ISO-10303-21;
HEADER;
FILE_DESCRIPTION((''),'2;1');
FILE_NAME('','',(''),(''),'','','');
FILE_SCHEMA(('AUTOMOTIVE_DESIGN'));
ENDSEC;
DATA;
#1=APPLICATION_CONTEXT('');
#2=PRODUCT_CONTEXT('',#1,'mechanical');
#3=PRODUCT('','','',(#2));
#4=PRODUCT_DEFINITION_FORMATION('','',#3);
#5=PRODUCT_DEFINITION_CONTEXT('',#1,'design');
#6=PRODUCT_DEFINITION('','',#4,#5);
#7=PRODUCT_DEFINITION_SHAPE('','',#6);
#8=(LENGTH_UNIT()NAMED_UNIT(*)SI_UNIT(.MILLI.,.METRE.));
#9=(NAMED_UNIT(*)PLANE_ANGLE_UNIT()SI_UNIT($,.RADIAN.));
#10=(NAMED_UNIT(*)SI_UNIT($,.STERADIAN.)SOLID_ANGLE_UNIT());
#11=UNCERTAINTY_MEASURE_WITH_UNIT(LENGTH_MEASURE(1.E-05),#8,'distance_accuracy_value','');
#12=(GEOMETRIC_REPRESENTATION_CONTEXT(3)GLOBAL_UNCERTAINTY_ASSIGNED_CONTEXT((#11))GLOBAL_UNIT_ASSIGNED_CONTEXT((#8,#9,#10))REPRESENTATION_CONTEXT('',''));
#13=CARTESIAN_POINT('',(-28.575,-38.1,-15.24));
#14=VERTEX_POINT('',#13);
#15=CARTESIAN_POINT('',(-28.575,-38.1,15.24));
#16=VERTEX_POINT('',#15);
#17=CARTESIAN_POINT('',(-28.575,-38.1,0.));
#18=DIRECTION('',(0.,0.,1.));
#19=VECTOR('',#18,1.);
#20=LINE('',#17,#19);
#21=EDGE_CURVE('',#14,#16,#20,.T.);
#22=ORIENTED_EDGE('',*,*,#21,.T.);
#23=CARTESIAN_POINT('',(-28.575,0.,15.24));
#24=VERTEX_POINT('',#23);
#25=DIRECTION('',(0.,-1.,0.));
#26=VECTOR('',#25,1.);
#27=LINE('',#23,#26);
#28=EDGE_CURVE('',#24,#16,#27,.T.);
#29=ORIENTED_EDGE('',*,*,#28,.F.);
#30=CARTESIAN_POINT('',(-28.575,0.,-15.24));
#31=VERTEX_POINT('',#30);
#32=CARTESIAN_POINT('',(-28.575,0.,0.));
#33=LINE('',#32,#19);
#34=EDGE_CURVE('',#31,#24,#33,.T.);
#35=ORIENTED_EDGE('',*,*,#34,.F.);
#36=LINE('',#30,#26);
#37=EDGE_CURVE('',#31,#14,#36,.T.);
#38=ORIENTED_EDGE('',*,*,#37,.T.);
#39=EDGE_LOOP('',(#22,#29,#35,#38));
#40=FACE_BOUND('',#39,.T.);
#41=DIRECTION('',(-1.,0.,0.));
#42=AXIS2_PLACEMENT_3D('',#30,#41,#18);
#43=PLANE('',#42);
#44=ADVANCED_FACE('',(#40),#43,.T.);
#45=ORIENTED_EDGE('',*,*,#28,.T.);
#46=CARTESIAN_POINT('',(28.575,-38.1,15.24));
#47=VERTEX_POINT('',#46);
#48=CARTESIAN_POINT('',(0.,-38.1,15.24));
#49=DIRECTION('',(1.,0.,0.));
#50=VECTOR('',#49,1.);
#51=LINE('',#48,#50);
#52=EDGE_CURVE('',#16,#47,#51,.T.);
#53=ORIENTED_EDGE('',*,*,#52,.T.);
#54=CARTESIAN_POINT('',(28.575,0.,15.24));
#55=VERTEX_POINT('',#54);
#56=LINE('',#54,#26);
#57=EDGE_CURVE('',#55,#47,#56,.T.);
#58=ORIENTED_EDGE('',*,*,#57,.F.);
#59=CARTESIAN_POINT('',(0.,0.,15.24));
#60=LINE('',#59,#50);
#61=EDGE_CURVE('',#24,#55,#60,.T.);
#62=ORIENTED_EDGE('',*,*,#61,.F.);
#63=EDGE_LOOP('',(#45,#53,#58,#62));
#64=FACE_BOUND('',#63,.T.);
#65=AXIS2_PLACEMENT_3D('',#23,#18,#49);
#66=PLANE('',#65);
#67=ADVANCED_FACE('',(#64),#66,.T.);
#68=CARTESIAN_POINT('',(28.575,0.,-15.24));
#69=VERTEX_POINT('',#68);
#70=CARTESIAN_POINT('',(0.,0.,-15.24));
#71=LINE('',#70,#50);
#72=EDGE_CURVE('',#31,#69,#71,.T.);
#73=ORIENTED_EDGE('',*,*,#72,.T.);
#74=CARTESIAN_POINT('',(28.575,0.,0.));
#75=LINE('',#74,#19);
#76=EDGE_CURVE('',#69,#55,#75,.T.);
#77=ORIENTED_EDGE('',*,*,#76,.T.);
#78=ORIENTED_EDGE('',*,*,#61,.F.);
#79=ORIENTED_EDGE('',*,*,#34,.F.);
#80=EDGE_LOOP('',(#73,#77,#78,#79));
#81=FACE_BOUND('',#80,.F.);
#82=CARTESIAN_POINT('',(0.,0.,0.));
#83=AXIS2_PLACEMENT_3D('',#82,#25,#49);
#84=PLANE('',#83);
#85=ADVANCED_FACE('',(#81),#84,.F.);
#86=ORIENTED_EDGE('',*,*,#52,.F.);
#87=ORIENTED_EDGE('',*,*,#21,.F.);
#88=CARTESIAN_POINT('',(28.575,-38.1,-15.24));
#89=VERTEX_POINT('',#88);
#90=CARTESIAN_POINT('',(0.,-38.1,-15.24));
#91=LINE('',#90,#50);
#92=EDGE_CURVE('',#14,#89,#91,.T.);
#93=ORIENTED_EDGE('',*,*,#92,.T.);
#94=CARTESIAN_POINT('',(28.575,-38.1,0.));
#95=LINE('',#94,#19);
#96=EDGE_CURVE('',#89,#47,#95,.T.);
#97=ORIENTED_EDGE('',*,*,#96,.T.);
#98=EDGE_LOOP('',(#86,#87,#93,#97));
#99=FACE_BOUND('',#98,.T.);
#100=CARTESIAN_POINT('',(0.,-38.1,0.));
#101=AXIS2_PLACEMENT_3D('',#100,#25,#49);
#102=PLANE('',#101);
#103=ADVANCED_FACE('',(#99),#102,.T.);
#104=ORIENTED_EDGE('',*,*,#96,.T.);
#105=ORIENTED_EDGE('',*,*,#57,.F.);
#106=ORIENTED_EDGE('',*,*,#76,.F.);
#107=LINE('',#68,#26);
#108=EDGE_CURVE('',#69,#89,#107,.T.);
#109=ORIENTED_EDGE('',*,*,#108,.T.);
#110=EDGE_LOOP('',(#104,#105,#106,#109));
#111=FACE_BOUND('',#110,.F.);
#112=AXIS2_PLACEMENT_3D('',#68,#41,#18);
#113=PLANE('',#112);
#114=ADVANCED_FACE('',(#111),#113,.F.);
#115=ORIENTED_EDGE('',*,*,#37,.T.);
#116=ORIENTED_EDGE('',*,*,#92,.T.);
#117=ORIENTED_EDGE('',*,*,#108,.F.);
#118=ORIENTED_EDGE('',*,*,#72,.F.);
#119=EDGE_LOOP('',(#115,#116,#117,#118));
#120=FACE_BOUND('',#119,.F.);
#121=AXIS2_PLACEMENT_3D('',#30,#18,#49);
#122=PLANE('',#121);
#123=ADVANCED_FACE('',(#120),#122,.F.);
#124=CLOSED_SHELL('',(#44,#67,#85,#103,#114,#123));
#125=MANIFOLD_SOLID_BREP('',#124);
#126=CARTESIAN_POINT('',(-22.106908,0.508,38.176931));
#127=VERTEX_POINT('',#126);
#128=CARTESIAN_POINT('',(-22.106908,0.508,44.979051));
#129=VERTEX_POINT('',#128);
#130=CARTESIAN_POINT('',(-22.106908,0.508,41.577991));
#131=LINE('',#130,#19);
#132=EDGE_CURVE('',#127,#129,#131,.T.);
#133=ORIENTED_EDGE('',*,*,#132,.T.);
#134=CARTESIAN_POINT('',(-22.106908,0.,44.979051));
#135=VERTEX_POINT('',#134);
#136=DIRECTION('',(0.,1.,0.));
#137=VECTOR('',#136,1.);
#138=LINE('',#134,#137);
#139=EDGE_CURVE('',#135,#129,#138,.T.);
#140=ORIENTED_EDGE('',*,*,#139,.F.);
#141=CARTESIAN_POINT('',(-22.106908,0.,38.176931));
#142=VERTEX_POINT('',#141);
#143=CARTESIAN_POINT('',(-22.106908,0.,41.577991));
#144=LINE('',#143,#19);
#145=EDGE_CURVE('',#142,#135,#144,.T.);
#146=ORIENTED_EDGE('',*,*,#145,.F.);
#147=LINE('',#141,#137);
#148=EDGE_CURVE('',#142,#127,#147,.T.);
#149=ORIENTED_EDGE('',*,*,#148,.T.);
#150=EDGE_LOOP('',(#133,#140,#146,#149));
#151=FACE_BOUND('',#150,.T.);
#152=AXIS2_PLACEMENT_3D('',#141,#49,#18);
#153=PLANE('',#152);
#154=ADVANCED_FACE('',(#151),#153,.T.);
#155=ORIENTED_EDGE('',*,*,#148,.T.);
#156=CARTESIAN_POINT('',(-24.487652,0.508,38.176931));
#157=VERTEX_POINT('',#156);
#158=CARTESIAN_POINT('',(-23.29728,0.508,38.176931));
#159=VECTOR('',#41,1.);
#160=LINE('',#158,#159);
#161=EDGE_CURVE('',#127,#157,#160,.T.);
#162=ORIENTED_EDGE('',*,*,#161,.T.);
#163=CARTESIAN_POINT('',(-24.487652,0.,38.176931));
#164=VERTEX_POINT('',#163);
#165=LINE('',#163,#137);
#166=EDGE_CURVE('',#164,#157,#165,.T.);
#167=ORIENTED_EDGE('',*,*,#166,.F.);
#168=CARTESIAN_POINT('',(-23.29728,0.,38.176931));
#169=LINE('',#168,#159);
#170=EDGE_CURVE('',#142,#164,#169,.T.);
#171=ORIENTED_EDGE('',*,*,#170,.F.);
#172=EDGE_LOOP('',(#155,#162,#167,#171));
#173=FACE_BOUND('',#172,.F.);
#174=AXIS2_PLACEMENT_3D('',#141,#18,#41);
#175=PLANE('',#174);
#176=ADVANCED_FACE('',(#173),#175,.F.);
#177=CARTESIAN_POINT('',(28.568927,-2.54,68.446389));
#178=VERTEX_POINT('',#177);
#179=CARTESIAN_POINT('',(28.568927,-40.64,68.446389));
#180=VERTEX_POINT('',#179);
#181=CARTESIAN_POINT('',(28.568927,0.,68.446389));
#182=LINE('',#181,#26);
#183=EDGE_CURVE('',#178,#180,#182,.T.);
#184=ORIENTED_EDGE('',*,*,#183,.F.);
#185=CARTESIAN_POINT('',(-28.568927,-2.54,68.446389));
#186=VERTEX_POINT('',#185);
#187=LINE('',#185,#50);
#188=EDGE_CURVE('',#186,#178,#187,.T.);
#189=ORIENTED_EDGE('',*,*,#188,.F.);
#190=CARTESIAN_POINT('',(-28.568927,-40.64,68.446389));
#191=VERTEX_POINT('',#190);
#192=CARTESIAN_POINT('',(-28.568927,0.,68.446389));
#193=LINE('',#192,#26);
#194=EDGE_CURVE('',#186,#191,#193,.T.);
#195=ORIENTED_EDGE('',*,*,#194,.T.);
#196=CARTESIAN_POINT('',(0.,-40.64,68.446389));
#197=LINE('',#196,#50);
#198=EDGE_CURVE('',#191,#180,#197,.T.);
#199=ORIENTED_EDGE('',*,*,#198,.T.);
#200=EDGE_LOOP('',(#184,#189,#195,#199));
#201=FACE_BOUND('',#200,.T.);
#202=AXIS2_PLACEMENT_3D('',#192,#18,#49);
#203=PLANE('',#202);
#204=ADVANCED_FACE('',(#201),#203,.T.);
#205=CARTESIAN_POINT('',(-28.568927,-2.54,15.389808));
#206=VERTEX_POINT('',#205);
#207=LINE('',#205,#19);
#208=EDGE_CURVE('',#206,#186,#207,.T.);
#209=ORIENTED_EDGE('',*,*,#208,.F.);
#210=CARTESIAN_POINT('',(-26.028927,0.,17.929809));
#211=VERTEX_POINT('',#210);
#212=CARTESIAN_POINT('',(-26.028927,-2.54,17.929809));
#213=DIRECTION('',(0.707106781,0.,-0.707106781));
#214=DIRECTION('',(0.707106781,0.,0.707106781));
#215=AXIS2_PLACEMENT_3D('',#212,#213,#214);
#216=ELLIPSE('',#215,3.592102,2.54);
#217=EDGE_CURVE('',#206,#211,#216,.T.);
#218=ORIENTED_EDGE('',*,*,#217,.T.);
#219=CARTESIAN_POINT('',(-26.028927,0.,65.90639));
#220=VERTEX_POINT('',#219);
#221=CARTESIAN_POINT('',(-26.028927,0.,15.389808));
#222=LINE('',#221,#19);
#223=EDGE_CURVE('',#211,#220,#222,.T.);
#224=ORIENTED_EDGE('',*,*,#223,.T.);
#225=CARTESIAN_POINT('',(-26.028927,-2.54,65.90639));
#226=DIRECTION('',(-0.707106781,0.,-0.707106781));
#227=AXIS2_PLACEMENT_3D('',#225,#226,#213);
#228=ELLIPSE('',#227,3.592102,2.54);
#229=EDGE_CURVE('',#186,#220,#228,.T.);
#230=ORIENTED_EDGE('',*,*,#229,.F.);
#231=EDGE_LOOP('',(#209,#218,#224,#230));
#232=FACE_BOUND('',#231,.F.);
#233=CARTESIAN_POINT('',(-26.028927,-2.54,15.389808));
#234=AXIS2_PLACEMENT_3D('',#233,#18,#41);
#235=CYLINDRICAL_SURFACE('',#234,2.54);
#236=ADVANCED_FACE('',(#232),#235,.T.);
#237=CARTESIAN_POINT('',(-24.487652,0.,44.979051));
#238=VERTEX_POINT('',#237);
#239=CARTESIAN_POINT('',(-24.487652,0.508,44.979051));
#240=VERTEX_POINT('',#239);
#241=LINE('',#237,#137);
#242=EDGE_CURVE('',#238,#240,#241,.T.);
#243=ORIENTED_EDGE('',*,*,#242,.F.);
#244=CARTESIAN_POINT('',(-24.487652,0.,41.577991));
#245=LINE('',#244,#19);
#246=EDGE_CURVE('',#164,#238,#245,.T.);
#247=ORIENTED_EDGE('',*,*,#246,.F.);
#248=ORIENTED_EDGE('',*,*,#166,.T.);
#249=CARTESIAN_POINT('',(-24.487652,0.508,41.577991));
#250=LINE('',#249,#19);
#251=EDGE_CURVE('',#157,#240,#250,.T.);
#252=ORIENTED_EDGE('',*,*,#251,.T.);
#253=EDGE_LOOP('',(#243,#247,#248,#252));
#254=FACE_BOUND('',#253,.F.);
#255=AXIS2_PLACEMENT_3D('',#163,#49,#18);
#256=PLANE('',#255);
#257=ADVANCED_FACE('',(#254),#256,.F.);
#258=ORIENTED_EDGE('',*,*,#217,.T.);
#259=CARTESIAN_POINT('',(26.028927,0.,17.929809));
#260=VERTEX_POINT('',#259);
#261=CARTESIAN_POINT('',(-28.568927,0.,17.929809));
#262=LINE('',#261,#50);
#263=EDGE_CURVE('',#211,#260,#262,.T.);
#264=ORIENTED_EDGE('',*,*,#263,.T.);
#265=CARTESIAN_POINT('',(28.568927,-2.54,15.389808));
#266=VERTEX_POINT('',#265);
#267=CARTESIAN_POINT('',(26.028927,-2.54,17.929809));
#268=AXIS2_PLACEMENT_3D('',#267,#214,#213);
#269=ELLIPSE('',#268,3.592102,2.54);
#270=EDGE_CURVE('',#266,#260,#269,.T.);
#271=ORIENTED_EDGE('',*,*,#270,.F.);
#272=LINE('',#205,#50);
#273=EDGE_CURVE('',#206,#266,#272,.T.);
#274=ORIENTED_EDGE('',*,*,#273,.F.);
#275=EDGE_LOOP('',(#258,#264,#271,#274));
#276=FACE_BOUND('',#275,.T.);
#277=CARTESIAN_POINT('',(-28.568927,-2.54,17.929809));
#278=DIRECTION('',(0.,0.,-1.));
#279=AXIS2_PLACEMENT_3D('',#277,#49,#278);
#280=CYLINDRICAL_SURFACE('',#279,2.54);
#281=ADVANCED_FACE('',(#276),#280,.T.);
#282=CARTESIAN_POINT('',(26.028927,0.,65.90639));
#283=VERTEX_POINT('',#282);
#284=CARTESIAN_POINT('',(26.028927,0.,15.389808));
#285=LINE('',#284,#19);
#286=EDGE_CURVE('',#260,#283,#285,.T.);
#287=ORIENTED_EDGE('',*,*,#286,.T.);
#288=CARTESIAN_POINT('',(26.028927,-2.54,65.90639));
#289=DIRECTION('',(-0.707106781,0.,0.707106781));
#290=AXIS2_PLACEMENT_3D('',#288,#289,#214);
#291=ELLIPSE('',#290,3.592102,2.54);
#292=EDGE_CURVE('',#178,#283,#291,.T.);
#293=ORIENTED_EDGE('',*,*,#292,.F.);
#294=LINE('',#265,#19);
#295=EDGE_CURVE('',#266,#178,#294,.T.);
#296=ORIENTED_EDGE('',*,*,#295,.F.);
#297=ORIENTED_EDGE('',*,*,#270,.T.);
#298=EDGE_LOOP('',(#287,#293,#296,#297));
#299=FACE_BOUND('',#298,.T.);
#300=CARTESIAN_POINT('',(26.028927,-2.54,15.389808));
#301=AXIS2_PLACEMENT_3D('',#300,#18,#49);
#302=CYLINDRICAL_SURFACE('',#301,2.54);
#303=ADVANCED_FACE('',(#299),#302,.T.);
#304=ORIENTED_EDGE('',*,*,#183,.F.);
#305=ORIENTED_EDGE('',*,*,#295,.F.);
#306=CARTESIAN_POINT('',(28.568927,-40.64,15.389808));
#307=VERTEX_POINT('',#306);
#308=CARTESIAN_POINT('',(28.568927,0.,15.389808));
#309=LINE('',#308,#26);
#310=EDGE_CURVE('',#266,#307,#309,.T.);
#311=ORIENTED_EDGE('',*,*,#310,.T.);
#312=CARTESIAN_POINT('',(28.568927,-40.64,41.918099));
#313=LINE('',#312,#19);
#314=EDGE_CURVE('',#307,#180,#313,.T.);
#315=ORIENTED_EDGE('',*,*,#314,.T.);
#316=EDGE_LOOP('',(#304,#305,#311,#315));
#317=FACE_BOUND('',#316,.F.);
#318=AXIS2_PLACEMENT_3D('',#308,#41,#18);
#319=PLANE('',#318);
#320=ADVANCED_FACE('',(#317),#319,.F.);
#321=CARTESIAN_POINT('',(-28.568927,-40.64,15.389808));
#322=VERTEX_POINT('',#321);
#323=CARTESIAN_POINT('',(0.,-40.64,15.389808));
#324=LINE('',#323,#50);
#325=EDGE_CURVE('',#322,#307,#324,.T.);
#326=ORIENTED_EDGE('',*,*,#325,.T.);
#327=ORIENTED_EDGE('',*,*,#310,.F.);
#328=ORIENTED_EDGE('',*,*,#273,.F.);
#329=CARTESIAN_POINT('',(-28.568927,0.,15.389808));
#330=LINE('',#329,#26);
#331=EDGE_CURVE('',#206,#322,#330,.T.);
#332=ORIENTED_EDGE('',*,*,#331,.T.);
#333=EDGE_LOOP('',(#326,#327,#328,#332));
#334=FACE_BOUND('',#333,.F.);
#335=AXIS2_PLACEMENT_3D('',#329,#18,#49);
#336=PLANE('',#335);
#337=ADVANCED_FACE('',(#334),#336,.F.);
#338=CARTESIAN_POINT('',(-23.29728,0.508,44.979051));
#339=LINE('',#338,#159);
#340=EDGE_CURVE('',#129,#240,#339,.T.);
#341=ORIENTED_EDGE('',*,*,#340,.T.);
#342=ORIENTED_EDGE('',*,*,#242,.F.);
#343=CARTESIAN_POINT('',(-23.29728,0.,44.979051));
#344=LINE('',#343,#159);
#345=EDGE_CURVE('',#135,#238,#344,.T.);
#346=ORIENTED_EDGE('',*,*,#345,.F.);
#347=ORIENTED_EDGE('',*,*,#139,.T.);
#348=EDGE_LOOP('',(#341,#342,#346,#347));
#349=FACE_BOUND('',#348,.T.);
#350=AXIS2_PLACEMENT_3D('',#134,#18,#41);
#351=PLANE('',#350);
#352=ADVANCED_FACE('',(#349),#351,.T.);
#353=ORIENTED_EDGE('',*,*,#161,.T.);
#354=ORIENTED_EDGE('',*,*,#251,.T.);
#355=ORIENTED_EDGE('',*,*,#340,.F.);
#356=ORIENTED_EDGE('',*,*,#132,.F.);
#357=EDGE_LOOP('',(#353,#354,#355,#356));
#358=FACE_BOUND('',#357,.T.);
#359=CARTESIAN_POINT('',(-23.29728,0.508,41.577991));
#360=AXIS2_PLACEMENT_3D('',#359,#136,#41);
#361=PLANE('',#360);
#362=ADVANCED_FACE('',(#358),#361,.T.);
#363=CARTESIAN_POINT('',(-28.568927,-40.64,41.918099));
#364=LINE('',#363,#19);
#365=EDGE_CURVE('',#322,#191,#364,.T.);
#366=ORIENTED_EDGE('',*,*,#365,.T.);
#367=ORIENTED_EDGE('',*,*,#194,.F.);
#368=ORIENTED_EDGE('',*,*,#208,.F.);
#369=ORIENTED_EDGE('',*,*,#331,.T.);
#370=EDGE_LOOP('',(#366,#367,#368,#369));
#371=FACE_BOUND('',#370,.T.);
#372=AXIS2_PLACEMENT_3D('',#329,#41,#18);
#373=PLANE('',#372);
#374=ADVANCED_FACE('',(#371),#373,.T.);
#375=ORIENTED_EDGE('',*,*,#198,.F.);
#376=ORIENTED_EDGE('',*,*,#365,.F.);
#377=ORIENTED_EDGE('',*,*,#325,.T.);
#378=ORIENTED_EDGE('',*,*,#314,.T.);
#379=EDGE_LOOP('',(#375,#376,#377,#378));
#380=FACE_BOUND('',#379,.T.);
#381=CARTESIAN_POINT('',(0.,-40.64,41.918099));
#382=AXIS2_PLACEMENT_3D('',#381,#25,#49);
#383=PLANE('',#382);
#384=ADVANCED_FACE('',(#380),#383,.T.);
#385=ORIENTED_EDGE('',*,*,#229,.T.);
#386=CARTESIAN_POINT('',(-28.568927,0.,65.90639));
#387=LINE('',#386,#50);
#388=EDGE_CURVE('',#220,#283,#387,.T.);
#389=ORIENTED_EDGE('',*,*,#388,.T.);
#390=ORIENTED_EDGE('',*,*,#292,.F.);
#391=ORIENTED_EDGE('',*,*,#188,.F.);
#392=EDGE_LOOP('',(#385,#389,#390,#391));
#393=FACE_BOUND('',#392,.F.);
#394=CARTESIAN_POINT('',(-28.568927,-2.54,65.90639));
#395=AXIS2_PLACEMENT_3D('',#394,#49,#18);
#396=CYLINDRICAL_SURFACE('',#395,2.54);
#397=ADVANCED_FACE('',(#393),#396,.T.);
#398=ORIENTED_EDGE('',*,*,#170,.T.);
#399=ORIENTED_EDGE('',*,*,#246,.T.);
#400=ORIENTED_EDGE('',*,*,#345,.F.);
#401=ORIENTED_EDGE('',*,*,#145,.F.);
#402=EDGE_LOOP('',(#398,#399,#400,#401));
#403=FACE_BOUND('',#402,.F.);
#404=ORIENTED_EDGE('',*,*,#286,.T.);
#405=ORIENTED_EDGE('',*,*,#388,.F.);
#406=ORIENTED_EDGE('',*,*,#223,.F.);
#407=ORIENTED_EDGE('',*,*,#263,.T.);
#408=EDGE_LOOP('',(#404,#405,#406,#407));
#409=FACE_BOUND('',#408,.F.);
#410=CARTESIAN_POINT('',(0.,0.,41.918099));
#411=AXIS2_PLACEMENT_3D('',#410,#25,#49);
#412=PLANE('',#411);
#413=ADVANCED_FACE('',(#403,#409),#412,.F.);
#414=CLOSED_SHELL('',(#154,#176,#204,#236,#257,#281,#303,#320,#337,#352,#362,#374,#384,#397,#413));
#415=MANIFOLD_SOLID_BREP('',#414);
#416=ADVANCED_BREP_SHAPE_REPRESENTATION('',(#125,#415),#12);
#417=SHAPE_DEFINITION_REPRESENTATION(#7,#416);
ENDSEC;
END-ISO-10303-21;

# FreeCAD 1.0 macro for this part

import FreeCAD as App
import Part
import Sketcher

V = App.Vector
Q = App.Units.Quantity


def edges_at(feature, points):
    """Names of the edges that pass closest to the given points."""
    edges = feature.Shape.Edges
    near = lambda p: min(range(len(edges)), key=lambda i: edges[i].distToShape(Part.Vertex(*p))[0])
    return sorted({f"Edge{near(p) + 1}" for p in points})

doc = App.newDocument("Part")
params = doc.addObject("Spreadsheet::Sheet", "Params")
for row, (alias, value) in enumerate([
    ("sketch1_height", "1.2 in"),
    ("sketch1_width", "2.25 in"),
    ("pad1_length", "1.5 in"),
    ("pad2_length", "1.6 in"),
    ("fillet_radius", "0.1 in"),
    ("pad3_length", "0.02 in"),
], start=1):
    params.set(f"A{row}", alias)
    params.set(f"B{row}", "=" + value)
    params.setAlias(f"B{row}", alias)

body = doc.addObject("PartDesign::Body", "Body")

# Sketch on XZ plane
sketch1 = body.newObject("Sketcher::SketchObject", "Sketch")
sketch1.AttachmentSupport = (doc.getObject("XZ_Plane"), [""])
sketch1.MapMode = "FlatFace"
sketch1.addGeometry([
    Part.LineSegment(V(-28.575, 15.24, 0), V(-28.575, -15.24, 0)),
    Part.LineSegment(V(-28.575, -15.24, 0), V(28.575, -15.24, 0)),
    Part.LineSegment(V(28.575, -15.24, 0), V(28.575, 15.24, 0)),
    Part.LineSegment(V(28.575, 15.24, 0), V(-28.575, 15.24, 0)),
], False)
sketch1.addConstraint([
    Sketcher.Constraint("Coincident", 0, 2, 1, 1),
    Sketcher.Constraint("Coincident", 1, 2, 2, 1),
    Sketcher.Constraint("Coincident", 2, 2, 3, 1),
    Sketcher.Constraint("Coincident", 3, 2, 0, 1),
    Sketcher.Constraint("Vertical", 0),
    Sketcher.Constraint("Horizontal", 1),
    Sketcher.Constraint("Vertical", 2),
    Sketcher.Constraint("Horizontal", 3),
    Sketcher.Constraint("Symmetric", 0, 2, 2, 2, -1, 1),
    Sketcher.Constraint("DistanceY", 0, 2, 0, 1, Q("1.2 in")),
    Sketcher.Constraint("DistanceX", 1, 1, 1, 2, Q("2.25 in")),
])
sketch1.setExpression("Constraints[9]", "Params.sketch1_height")
sketch1.setExpression("Constraints[10]", "Params.sketch1_width")
pad1 = body.newObject("PartDesign::Pad", "Pad")
pad1.Profile = sketch1
pad1.setExpression("Length", "Params.pad1_length")
body2 = doc.addObject("PartDesign::Body", "Body001")

# Sketch on XZ plane
sketch2 = body2.newObject("Sketcher::SketchObject", "Sketch001")
sketch2.AttachmentSupport = (doc.getObject("XZ_Plane001"), [""])
sketch2.MapMode = "FlatFace"
sketch2.addGeometry([
    Part.LineSegment(V(-28.568927, 68.446389, 0), V(-28.568927, 15.389808, 0)),
    Part.LineSegment(V(-28.568927, 15.389808, 0), V(28.568927, 15.389808, 0)),
    Part.LineSegment(V(28.568927, 15.389808, 0), V(28.568927, 68.446389, 0)),
    Part.LineSegment(V(28.568927, 68.446389, 0), V(-28.568927, 68.446389, 0)),
], False)
sketch2.addConstraint([
    Sketcher.Constraint("Coincident", 0, 2, 1, 1),
    Sketcher.Constraint("Coincident", 1, 2, 2, 1),
    Sketcher.Constraint("Coincident", 2, 2, 3, 1),
    Sketcher.Constraint("Coincident", 3, 2, 0, 1),
    Sketcher.Constraint("Vertical", 0),
    Sketcher.Constraint("Horizontal", 1),
    Sketcher.Constraint("Vertical", 2),
    Sketcher.Constraint("Horizontal", 3),
    Sketcher.Constraint("DistanceY", 0, 2, 0, 1, Q("53.056581 mm")),
    Sketcher.Constraint("DistanceX", 1, 1, 1, 2, Q("57.137854 mm")),
    Sketcher.Constraint("DistanceY", -1, 1, 0, 2, Q("15.389808 mm")),
    Sketcher.Constraint("DistanceX", 0, 2, -1, 1, Q("28.568927 mm")),
])
pad2 = body2.newObject("PartDesign::Pad", "Pad001")
pad2.Profile = sketch2
pad2.setExpression("Length", "Params.pad2_length")
doc.recompute()

fillet = body2.newObject("PartDesign::Fillet", "Fillet")
fillet.Base = (pad2, edges_at(pad2, [
    (0, 0, 15.39),
    (28.569, 0, 41.918),
    (0, 0, 68.446),
    (-28.569, 0, 41.918),
]))
fillet.setExpression("Radius", "Params.fillet_radius")

# Sketch on XZ plane
sketch3 = body2.newObject("Sketcher::SketchObject", "Sketch002")
sketch3.AttachmentSupport = (doc.getObject("XZ_Plane001"), [""])
sketch3.MapMode = "FlatFace"
sketch3.addGeometry([
    Part.LineSegment(V(-22.106908, 44.979051, 0), V(-22.106908, 38.176931, 0)),
    Part.LineSegment(V(-22.106908, 38.176931, 0), V(-24.487652, 38.176931, 0)),
    Part.LineSegment(V(-24.487652, 38.176931, 0), V(-24.487652, 44.979051, 0)),
    Part.LineSegment(V(-24.487652, 44.979051, 0), V(-22.106908, 44.979051, 0)),
], False)
sketch3.addConstraint([
    Sketcher.Constraint("Coincident", 0, 2, 1, 1),
    Sketcher.Constraint("Coincident", 1, 2, 2, 1),
    Sketcher.Constraint("Coincident", 2, 2, 3, 1),
    Sketcher.Constraint("Coincident", 3, 2, 0, 1),
    Sketcher.Constraint("Vertical", 0),
    Sketcher.Constraint("Horizontal", 1),
    Sketcher.Constraint("Vertical", 2),
    Sketcher.Constraint("Horizontal", 3),
    Sketcher.Constraint("DistanceY", 0, 2, 0, 1, Q("0.2678 in")),
    Sketcher.Constraint("DistanceX", 1, 2, 1, 1, Q("2.380744 mm")),
    Sketcher.Constraint("DistanceX", 0, 2, -1, 1, Q("22.106908 mm")),
    Sketcher.Constraint("DistanceY", -1, 1, 0, 2, Q("38.176931 mm")),
])
pad3 = body2.newObject("PartDesign::Pad", "Pad002")
pad3.Profile = sketch3
pad3.setExpression("Length", "Params.pad3_length")
pad3.Reversed = True

doc.recompute()
